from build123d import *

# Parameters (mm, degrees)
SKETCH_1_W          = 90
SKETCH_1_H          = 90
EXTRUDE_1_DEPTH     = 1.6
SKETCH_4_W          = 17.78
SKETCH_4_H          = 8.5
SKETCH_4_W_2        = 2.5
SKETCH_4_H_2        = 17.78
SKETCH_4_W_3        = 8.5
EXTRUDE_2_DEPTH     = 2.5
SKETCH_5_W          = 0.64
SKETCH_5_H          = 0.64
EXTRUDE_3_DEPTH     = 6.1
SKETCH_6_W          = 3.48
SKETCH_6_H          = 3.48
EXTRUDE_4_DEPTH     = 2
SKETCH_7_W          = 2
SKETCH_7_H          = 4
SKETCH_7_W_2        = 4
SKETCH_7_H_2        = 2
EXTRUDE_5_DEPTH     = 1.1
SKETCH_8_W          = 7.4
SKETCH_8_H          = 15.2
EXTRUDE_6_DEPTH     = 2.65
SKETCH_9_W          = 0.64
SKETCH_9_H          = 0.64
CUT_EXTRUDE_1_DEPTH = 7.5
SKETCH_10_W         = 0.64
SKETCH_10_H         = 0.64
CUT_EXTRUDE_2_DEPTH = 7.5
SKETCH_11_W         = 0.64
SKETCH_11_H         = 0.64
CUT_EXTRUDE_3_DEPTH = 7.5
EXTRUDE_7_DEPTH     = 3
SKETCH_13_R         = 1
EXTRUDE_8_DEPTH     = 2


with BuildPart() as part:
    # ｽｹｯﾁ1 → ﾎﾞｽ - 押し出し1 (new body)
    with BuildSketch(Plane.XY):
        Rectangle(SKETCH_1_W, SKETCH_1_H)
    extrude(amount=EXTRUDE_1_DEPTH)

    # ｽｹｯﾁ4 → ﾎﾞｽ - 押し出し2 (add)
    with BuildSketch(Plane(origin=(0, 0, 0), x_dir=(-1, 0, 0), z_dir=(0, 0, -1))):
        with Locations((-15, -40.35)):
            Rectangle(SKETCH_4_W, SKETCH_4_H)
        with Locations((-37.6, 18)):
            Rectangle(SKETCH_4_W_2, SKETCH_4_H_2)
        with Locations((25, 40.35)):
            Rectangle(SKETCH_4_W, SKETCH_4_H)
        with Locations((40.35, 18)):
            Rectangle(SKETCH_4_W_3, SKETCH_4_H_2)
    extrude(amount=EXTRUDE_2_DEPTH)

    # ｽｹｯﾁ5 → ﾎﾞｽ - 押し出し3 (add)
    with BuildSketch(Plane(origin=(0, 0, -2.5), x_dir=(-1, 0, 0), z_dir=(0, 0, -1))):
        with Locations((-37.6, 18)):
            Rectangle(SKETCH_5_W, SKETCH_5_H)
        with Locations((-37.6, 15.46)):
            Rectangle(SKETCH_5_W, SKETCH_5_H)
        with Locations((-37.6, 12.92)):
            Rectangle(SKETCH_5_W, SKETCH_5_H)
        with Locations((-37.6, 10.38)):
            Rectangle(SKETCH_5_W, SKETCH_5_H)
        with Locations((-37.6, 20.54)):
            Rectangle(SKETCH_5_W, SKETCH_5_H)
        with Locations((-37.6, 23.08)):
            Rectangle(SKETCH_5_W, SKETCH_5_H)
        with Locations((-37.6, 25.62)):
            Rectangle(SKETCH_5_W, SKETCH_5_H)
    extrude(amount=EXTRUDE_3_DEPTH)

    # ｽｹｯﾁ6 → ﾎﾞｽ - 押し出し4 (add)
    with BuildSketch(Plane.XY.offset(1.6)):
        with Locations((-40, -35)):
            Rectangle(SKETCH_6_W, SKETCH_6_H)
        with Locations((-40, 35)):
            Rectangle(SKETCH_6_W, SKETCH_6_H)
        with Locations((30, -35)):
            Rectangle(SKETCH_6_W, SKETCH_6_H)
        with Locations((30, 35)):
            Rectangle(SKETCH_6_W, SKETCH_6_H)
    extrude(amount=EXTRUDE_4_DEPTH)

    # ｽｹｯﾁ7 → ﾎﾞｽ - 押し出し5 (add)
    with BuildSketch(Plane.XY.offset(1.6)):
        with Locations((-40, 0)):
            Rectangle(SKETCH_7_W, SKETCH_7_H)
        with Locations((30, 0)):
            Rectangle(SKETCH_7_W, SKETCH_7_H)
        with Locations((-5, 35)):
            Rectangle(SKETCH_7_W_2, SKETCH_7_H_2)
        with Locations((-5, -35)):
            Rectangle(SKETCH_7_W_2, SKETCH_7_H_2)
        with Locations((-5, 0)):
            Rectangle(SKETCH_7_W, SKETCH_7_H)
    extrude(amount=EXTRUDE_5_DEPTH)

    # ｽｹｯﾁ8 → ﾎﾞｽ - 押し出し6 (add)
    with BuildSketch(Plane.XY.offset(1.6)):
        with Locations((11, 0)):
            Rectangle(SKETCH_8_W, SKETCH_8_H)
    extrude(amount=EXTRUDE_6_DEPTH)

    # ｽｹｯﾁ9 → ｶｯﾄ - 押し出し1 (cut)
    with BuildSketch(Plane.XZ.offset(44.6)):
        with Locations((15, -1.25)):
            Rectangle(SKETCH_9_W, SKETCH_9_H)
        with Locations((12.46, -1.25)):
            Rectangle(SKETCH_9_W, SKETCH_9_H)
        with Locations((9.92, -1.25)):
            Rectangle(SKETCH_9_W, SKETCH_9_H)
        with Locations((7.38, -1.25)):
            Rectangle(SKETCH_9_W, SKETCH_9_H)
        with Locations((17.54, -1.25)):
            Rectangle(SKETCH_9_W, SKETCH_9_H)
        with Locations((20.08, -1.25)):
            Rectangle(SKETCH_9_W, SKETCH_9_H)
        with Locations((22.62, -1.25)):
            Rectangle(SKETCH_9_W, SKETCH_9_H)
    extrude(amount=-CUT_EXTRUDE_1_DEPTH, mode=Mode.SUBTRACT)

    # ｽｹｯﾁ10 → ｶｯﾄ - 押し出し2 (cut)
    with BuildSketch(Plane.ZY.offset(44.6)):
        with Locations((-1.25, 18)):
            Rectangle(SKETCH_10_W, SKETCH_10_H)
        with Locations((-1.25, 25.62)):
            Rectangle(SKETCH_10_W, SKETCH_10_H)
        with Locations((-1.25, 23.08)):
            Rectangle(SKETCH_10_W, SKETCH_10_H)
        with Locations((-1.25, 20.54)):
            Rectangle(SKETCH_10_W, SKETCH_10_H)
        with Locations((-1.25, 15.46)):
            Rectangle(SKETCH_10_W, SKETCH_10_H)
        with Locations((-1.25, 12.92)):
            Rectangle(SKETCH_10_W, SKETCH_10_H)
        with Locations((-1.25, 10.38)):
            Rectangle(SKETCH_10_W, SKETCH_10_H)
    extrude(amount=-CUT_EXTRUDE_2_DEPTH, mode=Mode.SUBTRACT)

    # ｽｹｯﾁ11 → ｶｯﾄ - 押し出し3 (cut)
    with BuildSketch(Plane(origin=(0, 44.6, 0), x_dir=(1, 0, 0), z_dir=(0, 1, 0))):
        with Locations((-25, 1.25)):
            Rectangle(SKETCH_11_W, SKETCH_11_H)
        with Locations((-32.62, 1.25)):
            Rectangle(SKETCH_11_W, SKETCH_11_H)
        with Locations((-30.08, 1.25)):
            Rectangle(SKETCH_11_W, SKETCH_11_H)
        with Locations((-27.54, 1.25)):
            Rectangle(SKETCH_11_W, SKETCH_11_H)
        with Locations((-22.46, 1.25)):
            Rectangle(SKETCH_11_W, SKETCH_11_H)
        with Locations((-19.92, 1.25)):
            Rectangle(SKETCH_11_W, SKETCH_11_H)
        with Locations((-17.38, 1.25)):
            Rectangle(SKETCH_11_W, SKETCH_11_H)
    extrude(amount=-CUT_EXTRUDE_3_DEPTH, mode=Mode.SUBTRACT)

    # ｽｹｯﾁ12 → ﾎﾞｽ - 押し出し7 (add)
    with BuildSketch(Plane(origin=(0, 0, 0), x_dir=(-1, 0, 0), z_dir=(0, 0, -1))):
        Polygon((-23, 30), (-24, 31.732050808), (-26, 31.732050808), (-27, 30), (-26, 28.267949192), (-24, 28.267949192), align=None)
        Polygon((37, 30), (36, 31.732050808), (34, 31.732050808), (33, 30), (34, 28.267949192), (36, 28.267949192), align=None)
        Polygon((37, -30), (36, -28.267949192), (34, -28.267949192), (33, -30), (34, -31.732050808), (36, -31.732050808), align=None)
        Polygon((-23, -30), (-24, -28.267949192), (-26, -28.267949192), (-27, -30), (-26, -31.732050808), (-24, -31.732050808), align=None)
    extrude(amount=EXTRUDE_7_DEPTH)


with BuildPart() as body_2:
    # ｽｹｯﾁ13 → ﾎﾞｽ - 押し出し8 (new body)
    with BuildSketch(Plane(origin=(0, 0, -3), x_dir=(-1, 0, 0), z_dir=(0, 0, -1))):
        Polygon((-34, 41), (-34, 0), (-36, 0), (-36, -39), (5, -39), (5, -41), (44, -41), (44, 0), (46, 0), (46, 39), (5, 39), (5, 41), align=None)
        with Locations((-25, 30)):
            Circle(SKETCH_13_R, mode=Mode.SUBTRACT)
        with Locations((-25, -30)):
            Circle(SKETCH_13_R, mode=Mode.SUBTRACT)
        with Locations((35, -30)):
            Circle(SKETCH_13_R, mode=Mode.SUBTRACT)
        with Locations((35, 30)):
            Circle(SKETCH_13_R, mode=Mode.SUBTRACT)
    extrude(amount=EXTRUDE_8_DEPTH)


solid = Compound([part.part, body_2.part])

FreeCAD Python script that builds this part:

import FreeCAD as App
import Part
import Sketcher

V = App.Vector
Q = App.Units.Quantity


def add_polygon(sketch, points):
    """Adds a closed chain of lines whose ends are joined by coincident constraints."""
    first, n = sketch.GeometryCount, len(points)
    for a, b in zip(points, points[1:] + points[:1]):
        sketch.addGeometry(Part.LineSegment(App.Vector(*a, 0), App.Vector(*b, 0)), False)
    for i in range(n):
        sketch.addConstraint(Sketcher.Constraint("Coincident", first + i, 2, first + (i + 1) % n, 1))

doc = App.newDocument("Part")
params = doc.addObject("Spreadsheet::Sheet", "Params")
for row, (alias, value) in enumerate([
    ("sketch1_width", "90 mm"),
    ("pad1_length", "1.6 mm"),
    ("sketch2_width", "2.5 mm"),
    ("sketch2_width2", "8.5 mm"),
    ("sketch2_width3", "17.78 mm"),
    ("pad2_length", "2.5 mm"),
    ("sketch3_width", "0.64 mm"),
    ("pad3_length", "6.1 mm"),
    ("sketch4_width", "3.48 mm"),
    ("pad4_length", "2 mm"),
    ("sketch5_width", "2 mm"),
    ("sketch5_width2", "4 mm"),
    ("pad5_length", "1.1 mm"),
    ("sketch6_width", "7.4 mm"),
    ("sketch6_height", "15.2 mm"),
    ("pad6_length", "2.65 mm"),
    ("sketch7_width", "0.64 mm"),
    ("pocket1_length", "7.5 mm"),
    ("sketch8_width", "0.64 mm"),
    ("pocket2_length", "7.5 mm"),
    ("sketch9_width", "0.64 mm"),
    ("pocket3_length", "7.5 mm"),
    ("sketch10_width", "2 mm"),
    ("sketch10_length", "2 mm"),
    ("pad7_length", "3 mm"),
    ("sketch11_diameter", "2 mm"),
    ("sketch11_width", "2 mm"),
    ("sketch11_width2", "41 mm"),
    ("pad8_length", "2 mm"),
], start=1):
    params.set(f"A{row}", alias)
    params.set(f"B{row}", "=" + value)
    params.setAlias(f"B{row}", alias)

body = doc.addObject("PartDesign::Body", "Body")

sketch1 = doc.addObject("Sketcher::SketchObject", "Sketch")
body.addObject(sketch1)
sketch1.AttachmentSupport = (doc.XY_Plane, [""])
sketch1.MapMode = "FlatFace"
add_polygon(sketch1, [(-45, 45), (-45, -45), (45, -45), (45, 45)])
sketch1.addConstraint([
    Sketcher.Constraint("Vertical", 0),
    Sketcher.Constraint("Horizontal", 1),
    Sketcher.Constraint("Vertical", 2),
    Sketcher.Constraint("Horizontal", 3),
    Sketcher.Constraint("Symmetric", 0, 2, 2, 2, -1, 1),
    Sketcher.Constraint("Equal", 3, 0),
    Sketcher.Constraint("DistanceX", 1, 1, 1, 2, Q("90 mm")),
])
sketch1.setExpression("Constraints[10]", "Params.sketch1_width")
pad1 = doc.addObject("PartDesign::Pad", "Pad")
body.addObject(pad1)
pad1.Profile = sketch1
pad1.setExpression("Length", "Params.pad1_length")

sketch2 = doc.addObject("Sketcher::SketchObject", "Sketch001")
body.addObject(sketch2)
sketch2.AttachmentSupport = (doc.XY_Plane, [""])
sketch2.MapMode = "FlatFace"
add_polygon(sketch2, [(23.89, -36.1), (23.89, -44.6), (6.11, -44.6), (6.11, -36.1)])
add_polygon(sketch2, [(38.85, 26.89), (38.85, 9.11), (36.35, 9.11), (36.35, 26.89)])
add_polygon(sketch2, [(-16.11, 44.6), (-16.11, 36.1), (-33.89, 36.1), (-33.89, 44.6)])
add_polygon(sketch2, [(-36.1, 26.89), (-36.1, 9.11), (-44.6, 9.11), (-44.6, 26.89)])
sketch2.addConstraint([
    Sketcher.Constraint("Vertical", 0),
    Sketcher.Constraint("Horizontal", 1),
    Sketcher.Constraint("Vertical", 2),
    Sketcher.Constraint("Horizontal", 3),
    Sketcher.Constraint("Vertical", 4),
    Sketcher.Constraint("Horizontal", 5),
    Sketcher.Constraint("Vertical", 6),
    Sketcher.Constraint("Horizontal", 7),
    Sketcher.Constraint("Vertical", 8),
    Sketcher.Constraint("Horizontal", 9),
    Sketcher.Constraint("Vertical", 10),
    Sketcher.Constraint("Horizontal", 11),
    Sketcher.Constraint("Vertical", 12),
    Sketcher.Constraint("Horizontal", 13),
    Sketcher.Constraint("Vertical", 14),
    Sketcher.Constraint("Horizontal", 15),
    Sketcher.Constraint("Horizontal", 5, 2, 12, 2),
    Sketcher.Constraint("Horizontal", 7, 2, 14, 2),
    Sketcher.Constraint("Equal", 3, 9),
    Sketcher.Constraint("Equal", 15, 0),
    Sketcher.Constraint("Equal", 11, 4),
    Sketcher.Constraint("Equal", 2, 8),
    Sketcher.Constraint("DistanceX", 5, 2, 5, 1, Q("2.5 mm")),
    Sketcher.Constraint("DistanceX", 13, 2, 13, 1, Q("8.5 mm")),
    Sketcher.Constraint("DistanceX", 1, 2, 1, 1, Q("17.78 mm")),
    Sketcher.Constraint("DistanceY", 0, 2, -1, 1, Q("44.6 mm")),
    Sketcher.Constraint("DistanceY", -1, 1, 8, 2, Q("36.1 mm")),
    Sketcher.Constraint("DistanceX", 12, 2, -1, 1, Q("36.1 mm")),
    Sketcher.Constraint("DistanceX", -1, 1, 0, 2, Q("23.89 mm")),
    Sketcher.Constraint("DistanceX", -1, 1, 4, 2, Q("38.85 mm")),
    Sketcher.Constraint("DistanceY", -1, 1, 4, 2, Q("9.11 mm")),
    Sketcher.Constraint("DistanceX", 8, 2, -1, 1, Q("16.11 mm")),
])
sketch2.setExpression("Constraints[38]", "Params.sketch2_width")
sketch2.setExpression("Constraints[39]", "Params.sketch2_width2")
sketch2.setExpression("Constraints[40]", "Params.sketch2_width3")
pad2 = doc.addObject("PartDesign::Pad", "Pad001")
body.addObject(pad2)
pad2.Profile = sketch2
pad2.setExpression("Length", "Params.pad2_length")
pad2.Reversed = True

sketch3 = doc.addObject("Sketcher::SketchObject", "Sketch002")
body.addObject(sketch3)
sketch3.AttachmentSupport = (doc.XY_Plane, [""])
sketch3.MapMode = "FlatFace"
sketch3.AttachmentOffset = App.Placement(V(0, 0, -2.5), App.Rotation())
add_polygon(sketch3, [(37.92, 18.32), (37.92, 17.68), (37.28, 17.68), (37.28, 18.32)])
add_polygon(sketch3, [(37.92, 15.78), (37.92, 15.14), (37.28, 15.14), (37.28, 15.78)])
add_polygon(sketch3, [(37.92, 13.24), (37.92, 12.6), (37.28, 12.6), (37.28, 13.24)])
add_polygon(sketch3, [(37.92, 10.7), (37.92, 10.06), (37.28, 10.06), (37.28, 10.7)])
add_polygon(sketch3, [(37.92, 20.86), (37.92, 20.22), (37.28, 20.22), (37.28, 20.86)])
add_polygon(sketch3, [(37.92, 23.4), (37.92, 22.76), (37.28, 22.76), (37.28, 23.4)])
add_polygon(sketch3, [(37.92, 25.94), (37.92, 25.3), (37.28, 25.3), (37.28, 25.94)])
sketch3.addConstraint([
    Sketcher.Constraint("Vertical", 0),
    Sketcher.Constraint("Horizontal", 1),
    Sketcher.Constraint("Vertical", 2),
    Sketcher.Constraint("Horizontal", 3),
    Sketcher.Constraint("Vertical", 4),
    Sketcher.Constraint("Horizontal", 5),
    Sketcher.Constraint("Vertical", 6),
    Sketcher.Constraint("Horizontal", 7),
    Sketcher.Constraint("Vertical", 8),
    Sketcher.Constraint("Horizontal", 9),
    Sketcher.Constraint("Vertical", 10),
    Sketcher.Constraint("Horizontal", 11),
    Sketcher.Constraint("Vertical", 12),
    Sketcher.Constraint("Horizontal", 13),
    Sketcher.Constraint("Vertical", 14),
    Sketcher.Constraint("Horizontal", 15),
    Sketcher.Constraint("Vertical", 16),
    Sketcher.Constraint("Horizontal", 17),
    Sketcher.Constraint("Vertical", 18),
    Sketcher.Constraint("Horizontal", 19),
    Sketcher.Constraint("Vertical", 20),
    Sketcher.Constraint("Horizontal", 21),
    Sketcher.Constraint("Vertical", 22),
    Sketcher.Constraint("Horizontal", 23),
    Sketcher.Constraint("Vertical", 24),
    Sketcher.Constraint("Horizontal", 25),
    Sketcher.Constraint("Vertical", 26),
    Sketcher.Constraint("Horizontal", 27),
    Sketcher.Constraint("Vertical", 3, 2, 4, 2),
    Sketcher.Constraint("Vertical", 2, 2, 5, 2),
    Sketcher.Constraint("Vertical", 7, 2, 8, 2),
    Sketcher.Constraint("Vertical", 6, 2, 9, 2),
    Sketcher.Constraint("Vertical", 11, 2, 12, 2),
    Sketcher.Constraint("Vertical", 10, 2, 13, 2),
    Sketcher.Constraint("Vertical", 15, 2, 16, 2),
    Sketcher.Constraint("Vertical", 14, 2, 17, 2),
    Sketcher.Constraint("Vertical", 19, 2, 20, 2),
    Sketcher.Constraint("Vertical", 18, 2, 21, 2),
    Sketcher.Constraint("Vertical", 23, 2, 24, 2),
    Sketcher.Constraint("Vertical", 22, 2, 25, 2),
    Sketcher.Constraint("Equal", 27, 0),
    Sketcher.Constraint("Equal", 2, 4),
    Sketcher.Constraint("Equal", 6, 8),
    Sketcher.Constraint("Equal", 10, 12),
    Sketcher.Constraint("Equal", 14, 16),
    Sketcher.Constraint("Equal", 18, 20),
    Sketcher.Constraint("Equal", 22, 24),
    Sketcher.Constraint("DistanceX", 1, 2, 1, 1, Q("0.64 mm")),
    Sketcher.Constraint("DistanceY", -1, 1, 8, 2, Q("12.6 mm")),
    Sketcher.Constraint("DistanceY", -1, 1, 14, 2, Q("10.7 mm")),
    Sketcher.Constraint("DistanceY", -1, 1, 22, 2, Q("23.4 mm")),
    Sketcher.Constraint("DistanceY", -1, 1, 24, 2, Q("25.3 mm")),
    Sketcher.Constraint("DistanceY", 6, 2, 1, 2, Q("1.9 mm")),
    Sketcher.Constraint("DistanceY", 10, 2, 5, 2, Q("1.9 mm")),
    Sketcher.Constraint("DistanceY", 3, 2, 16, 2, Q("1.9 mm")),
    Sketcher.Constraint("DistanceX", -1, 1, 0, 2, Q("37.92 mm")),
])
sketch3.setExpression("Constraints[75]", "Params.sketch3_width")
pad3 = doc.addObject("PartDesign::Pad", "Pad002")
body.addObject(pad3)
pad3.Profile = sketch3
pad3.setExpression("Length", "Params.pad3_length")
pad3.Reversed = True

sketch4 = doc.addObject("Sketcher::SketchObject", "Sketch003")
body.addObject(sketch4)
sketch4.AttachmentSupport = (doc.XY_Plane, [""])
sketch4.MapMode = "FlatFace"
sketch4.AttachmentOffset = App.Placement(V(0, 0, 1.6), App.Rotation())
add_polygon(sketch4, [(-41.74, -33.26), (-41.74, -36.74), (-38.26, -36.74), (-38.26, -33.26)])
add_polygon(sketch4, [(-41.74, 36.74), (-41.74, 33.26), (-38.26, 33.26), (-38.26, 36.74)])
add_polygon(sketch4, [(28.26, -33.26), (28.26, -36.74), (31.74, -36.74), (31.74, -33.26)])
add_polygon(sketch4, [(28.26, 36.74), (28.26, 33.26), (31.74, 33.26), (31.74, 36.74)])
sketch4.addConstraint([
    Sketcher.Constraint("Vertical", 0),
    Sketcher.Constraint("Horizontal", 1),
    Sketcher.Constraint("Vertical", 2),
    Sketcher.Constraint("Horizontal", 3),
    Sketcher.Constraint("Vertical", 4),
    Sketcher.Constraint("Horizontal", 5),
    Sketcher.Constraint("Vertical", 6),
    Sketcher.Constraint("Horizontal", 7),
    Sketcher.Constraint("Vertical", 8),
    Sketcher.Constraint("Horizontal", 9),
    Sketcher.Constraint("Vertical", 10),
    Sketcher.Constraint("Horizontal", 11),
    Sketcher.Constraint("Vertical", 12),
    Sketcher.Constraint("Horizontal", 13),
    Sketcher.Constraint("Vertical", 14),
    Sketcher.Constraint("Horizontal", 15),
    Sketcher.Constraint("Symmetric", 3, 2, 4, 2, -1),
    Sketcher.Constraint("Symmetric", 1, 2, 6, 2, -1),
    Sketcher.Constraint("Symmetric", 11, 2, 12, 2, -1),
    Sketcher.Constraint("Symmetric", 9, 2, 14, 2, -1),
    Sketcher.Constraint("Horizontal", 1, 2, 8, 2),
    Sketcher.Constraint("Horizontal", 3, 2, 10, 2),
    Sketcher.Constraint("Equal", 7, 9),
    Sketcher.Constraint("Equal", 15, 0),
    Sketcher.Constraint("DistanceY", 0, 2, 4, 2, Q("70 mm")),
    Sketcher.Constraint("DistanceX", 0, 2, 8, 2, Q("70 mm")),
    Sketcher.Constraint("DistanceX", 1, 1, 1, 2, Q("3.48 mm")),
    Sketcher.Constraint("DistanceX", 0, 2, -1, 1, Q("41.74 mm")),
])
sketch4.setExpression("Constraints[42]", "Params.sketch4_width")
pad4 = doc.addObject("PartDesign::Pad", "Pad003")
body.addObject(pad4)
pad4.Profile = sketch4
pad4.setExpression("Length", "Params.pad4_length")

sketch5 = doc.addObject("Sketcher::SketchObject", "Sketch004")
body.addObject(sketch5)
sketch5.AttachmentSupport = (doc.XY_Plane, [""])
sketch5.MapMode = "FlatFace"
sketch5.AttachmentOffset = App.Placement(V(0, 0, 1.6), App.Rotation())
add_polygon(sketch5, [(-41, 2), (-41, -2), (-39, -2), (-39, 2)])
add_polygon(sketch5, [(29, 2), (29, -2), (31, -2), (31, 2)])
add_polygon(sketch5, [(-7, 36), (-7, 34), (-3, 34), (-3, 36)])
add_polygon(sketch5, [(-7, -34), (-7, -36), (-3, -36), (-3, -34)])
add_polygon(sketch5, [(-6, 2), (-6, -2), (-4, -2), (-4, 2)])
sketch5.addConstraint([
    Sketcher.Constraint("Vertical", 0),
    Sketcher.Constraint("Horizontal", 1),
    Sketcher.Constraint("Vertical", 2),
    Sketcher.Constraint("Horizontal", 3),
    Sketcher.Constraint("Vertical", 4),
    Sketcher.Constraint("Horizontal", 5),
    Sketcher.Constraint("Vertical", 6),
    Sketcher.Constraint("Horizontal", 7),
    Sketcher.Constraint("Vertical", 8),
    Sketcher.Constraint("Horizontal", 9),
    Sketcher.Constraint("Vertical", 10),
    Sketcher.Constraint("Horizontal", 11),
    Sketcher.Constraint("Vertical", 12),
    Sketcher.Constraint("Horizontal", 13),
    Sketcher.Constraint("Vertical", 14),
    Sketcher.Constraint("Horizontal", 15),
    Sketcher.Constraint("Vertical", 16),
    Sketcher.Constraint("Horizontal", 17),
    Sketcher.Constraint("Vertical", 18),
    Sketcher.Constraint("Horizontal", 19),
    Sketcher.Constraint("Symmetric", 11, 2, 12, 2, -1),
    Sketcher.Constraint("Symmetric", 9, 2, 14, 2, -1),
    Sketcher.Constraint("Horizontal", 1, 2, 4, 2),
    Sketcher.Constraint("Horizontal", 3, 2, 6, 2),
    Sketcher.Constraint("Horizontal", 5, 2, 16, 2),
    Sketcher.Constraint("Horizontal", 7, 2, 18, 2),
    Sketcher.Constraint("Equal", 3, 5),
    Sketcher.Constraint("Equal", 7, 17),
    Sketcher.Constraint("Equal", 15, 0),
    Sketcher.Constraint("Equal", 19, 8),
    Sketcher.Constraint("DistanceX", 1, 1, 1, 2, Q("2 mm")),
    Sketcher.Constraint("DistanceX", 9, 1, 9, 2, Q("4 mm")),
    Sketcher.Constraint("DistanceX", 0, 2, -1, 1, Q("41 mm")),
    Sketcher.Constraint("DistanceY", 0, 2, -1, 1, Q("2 mm")),
    Sketcher.Constraint("DistanceX", -1, 1, 4, 2, Q("29 mm")),
    Sketcher.Constraint("DistanceX", 8, 2, -1, 1, Q("7 mm")),
    Sketcher.Constraint("DistanceY", -1, 1, 8, 2, Q("34 mm")),
    Sketcher.Constraint("DistanceX", 16, 2, -1, 1, Q("6 mm")),
])
sketch5.setExpression("Constraints[50]", "Params.sketch5_width")
sketch5.setExpression("Constraints[51]", "Params.sketch5_width2")
pad5 = doc.addObject("PartDesign::Pad", "Pad004")
body.addObject(pad5)
pad5.Profile = sketch5
pad5.setExpression("Length", "Params.pad5_length")

sketch6 = doc.addObject("Sketcher::SketchObject", "Sketch005")
body.addObject(sketch6)
sketch6.AttachmentSupport = (doc.XY_Plane, [""])
sketch6.MapMode = "FlatFace"
sketch6.AttachmentOffset = App.Placement(V(0, 0, 1.6), App.Rotation())
add_polygon(sketch6, [(7.3, 7.6), (7.3, -7.6), (14.7, -7.6), (14.7, 7.6)])
sketch6.addConstraint([
    Sketcher.Constraint("Vertical", 0),
    Sketcher.Constraint("Horizontal", 1),
    Sketcher.Constraint("Vertical", 2),
    Sketcher.Constraint("Horizontal", 3),
    Sketcher.Constraint("DistanceX", 1, 1, 1, 2, Q("7.4 mm")),
    Sketcher.Constraint("DistanceY", 0, 2, 0, 1, Q("15.2 mm")),
    Sketcher.Constraint("DistanceX", -1, 1, 0, 2, Q("7.3 mm")),
    Sketcher.Constraint("DistanceY", 0, 2, -1, 1, Q("7.6 mm")),
])
sketch6.setExpression("Constraints[8]", "Params.sketch6_width")
sketch6.setExpression("Constraints[9]", "Params.sketch6_height")
pad6 = doc.addObject("PartDesign::Pad", "Pad005")
body.addObject(pad6)
pad6.Profile = sketch6
pad6.setExpression("Length", "Params.pad6_length")

sketch7 = doc.addObject("Sketcher::SketchObject", "Sketch006")
body.addObject(sketch7)
sketch7.AttachmentSupport = (doc.XZ_Plane, [""])
sketch7.MapMode = "FlatFace"
sketch7.AttachmentOffset = App.Placement(V(0, 0, 44.6), App.Rotation())
add_polygon(sketch7, [(14.68, -0.93), (14.68, -1.57), (15.32, -1.57), (15.32, -0.93)])
add_polygon(sketch7, [(12.14, -0.93), (12.14, -1.57), (12.78, -1.57), (12.78, -0.93)])
add_polygon(sketch7, [(9.6, -0.93), (9.6, -1.57), (10.24, -1.57), (10.24, -0.93)])
add_polygon(sketch7, [(7.06, -0.93), (7.06, -1.57), (7.7, -1.57), (7.7, -0.93)])
add_polygon(sketch7, [(17.22, -0.93), (17.22, -1.57), (17.86, -1.57), (17.86, -0.93)])
add_polygon(sketch7, [(19.76, -0.93), (19.76, -1.57), (20.4, -1.57), (20.4, -0.93)])
add_polygon(sketch7, [(22.3, -0.93), (22.3, -1.57), (22.94, -1.57), (22.94, -0.93)])
sketch7.addConstraint([
    Sketcher.Constraint("Vertical", 0),
    Sketcher.Constraint("Horizontal", 1),
    Sketcher.Constraint("Vertical", 2),
    Sketcher.Constraint("Horizontal", 3),
    Sketcher.Constraint("Vertical", 4),
    Sketcher.Constraint("Horizontal", 5),
    Sketcher.Constraint("Vertical", 6),
    Sketcher.Constraint("Horizontal", 7),
    Sketcher.Constraint("Vertical", 8),
    Sketcher.Constraint("Horizontal", 9),
    Sketcher.Constraint("Vertical", 10),
    Sketcher.Constraint("Horizontal", 11),
    Sketcher.Constraint("Vertical", 12),
    Sketcher.Constraint("Horizontal", 13),
    Sketcher.Constraint("Vertical", 14),
    Sketcher.Constraint("Horizontal", 15),
    Sketcher.Constraint("Vertical", 16),
    Sketcher.Constraint("Horizontal", 17),
    Sketcher.Constraint("Vertical", 18),
    Sketcher.Constraint("Horizontal", 19),
    Sketcher.Constraint("Vertical", 20),
    Sketcher.Constraint("Horizontal", 21),
    Sketcher.Constraint("Vertical", 22),
    Sketcher.Constraint("Horizontal", 23),
    Sketcher.Constraint("Vertical", 24),
    Sketcher.Constraint("Horizontal", 25),
    Sketcher.Constraint("Vertical", 26),
    Sketcher.Constraint("Horizontal", 27),
    Sketcher.Constraint("Horizontal", 1, 2, 4, 2),
    Sketcher.Constraint("Horizontal", 3, 2, 6, 2),
    Sketcher.Constraint("Horizontal", 5, 2, 8, 2),
    Sketcher.Constraint("Horizontal", 7, 2, 10, 2),
    Sketcher.Constraint("Horizontal", 9, 2, 12, 2),
    Sketcher.Constraint("Horizontal", 11, 2, 14, 2),
    Sketcher.Constraint("Horizontal", 13, 2, 16, 2),
    Sketcher.Constraint("Horizontal", 15, 2, 18, 2),
    Sketcher.Constraint("Horizontal", 17, 2, 20, 2),
    Sketcher.Constraint("Horizontal", 19, 2, 22, 2),
    Sketcher.Constraint("Horizontal", 21, 2, 24, 2),
    Sketcher.Constraint("Horizontal", 23, 2, 26, 2),
    Sketcher.Constraint("Equal", 3, 5),
    Sketcher.Constraint("Equal", 7, 9),
    Sketcher.Constraint("Equal", 11, 13),
    Sketcher.Constraint("Equal", 15, 17),
    Sketcher.Constraint("Equal", 19, 21),
    Sketcher.Constraint("Equal", 23, 25),
    Sketcher.Constraint("Equal", 27, 0),
    Sketcher.Constraint("DistanceX", 1, 1, 1, 2, Q("0.64 mm")),
    Sketcher.Constraint("DistanceX", -1, 1, 8, 2, Q("9.6 mm")),
    Sketcher.Constraint("DistanceX", -1, 1, 13, 2, Q("7.7 mm")),
    Sketcher.Constraint("DistanceX", -1, 1, 21, 2, Q("20.4 mm")),
    Sketcher.Constraint("DistanceX", -1, 1, 24, 2, Q("22.3 mm")),
    Sketcher.Constraint("DistanceX", 5, 2, 0, 2, Q("1.9 mm")),
    Sketcher.Constraint("DistanceX", 9, 2, 4, 2, Q("1.9 mm")),
    Sketcher.Constraint("DistanceX", 1, 2, 16, 2, Q("1.9 mm")),
    Sketcher.Constraint("DistanceY", 0, 2, -1, 1, Q("1.57 mm")),
])
sketch7.setExpression("Constraints[75]", "Params.sketch7_width")
pocket1 = doc.addObject("PartDesign::Pocket", "Pocket")
body.addObject(pocket1)
pocket1.Profile = sketch7
pocket1.setExpression("Length", "Params.pocket1_length")

sketch8 = doc.addObject("Sketcher::SketchObject", "Sketch007")
body.addObject(sketch8)
sketch8.AttachmentSupport = (doc.YZ_Plane, [""])
sketch8.MapMode = "FlatFace"
sketch8.AttachmentOffset = App.Placement(V(0, 0, -44.6), App.Rotation())
add_polygon(sketch8, [(18.32, -1.57), (17.68, -1.57), (17.68, -0.93), (18.32, -0.93)])
add_polygon(sketch8, [(25.94, -1.57), (25.3, -1.57), (25.3, -0.93), (25.94, -0.93)])
add_polygon(sketch8, [(23.4, -1.57), (22.76, -1.57), (22.76, -0.93), (23.4, -0.93)])
add_polygon(sketch8, [(20.86, -1.57), (20.22, -1.57), (20.22, -0.93), (20.86, -0.93)])
add_polygon(sketch8, [(15.78, -1.57), (15.14, -1.57), (15.14, -0.93), (15.78, -0.93)])
add_polygon(sketch8, [(13.24, -1.57), (12.6, -1.57), (12.6, -0.93), (13.24, -0.93)])
add_polygon(sketch8, [(10.7, -1.57), (10.06, -1.57), (10.06, -0.93), (10.7, -0.93)])
sketch8.addConstraint([
    Sketcher.Constraint("Horizontal", 0),
    Sketcher.Constraint("Vertical", 1),
    Sketcher.Constraint("Horizontal", 2),
    Sketcher.Constraint("Vertical", 3),
    Sketcher.Constraint("Horizontal", 4),
    Sketcher.Constraint("Vertical", 5),
    Sketcher.Constraint("Horizontal", 6),
    Sketcher.Constraint("Vertical", 7),
    Sketcher.Constraint("Horizontal", 8),
    Sketcher.Constraint("Vertical", 9),
    Sketcher.Constraint("Horizontal", 10),
    Sketcher.Constraint("Vertical", 11),
    Sketcher.Constraint("Horizontal", 12),
    Sketcher.Constraint("Vertical", 13),
    Sketcher.Constraint("Horizontal", 14),
    Sketcher.Constraint("Vertical", 15),
    Sketcher.Constraint("Horizontal", 16),
    Sketcher.Constraint("Vertical", 17),
    Sketcher.Constraint("Horizontal", 18),
    Sketcher.Constraint("Vertical", 19),
    Sketcher.Constraint("Horizontal", 20),
    Sketcher.Constraint("Vertical", 21),
    Sketcher.Constraint("Horizontal", 22),
    Sketcher.Constraint("Vertical", 23),
    Sketcher.Constraint("Horizontal", 24),
    Sketcher.Constraint("Vertical", 25),
    Sketcher.Constraint("Horizontal", 26),
    Sketcher.Constraint("Vertical", 27),
    Sketcher.Constraint("Horizontal", 3, 2, 4, 2),
    Sketcher.Constraint("Horizontal", 2, 2, 5, 2),
    Sketcher.Constraint("Horizontal", 7, 2, 8, 2),
    Sketcher.Constraint("Horizontal", 6, 2, 9, 2),
    Sketcher.Constraint("Horizontal", 11, 2, 12, 2),
    Sketcher.Constraint("Horizontal", 10, 2, 13, 2),
    Sketcher.Constraint("Horizontal", 15, 2, 16, 2),
    Sketcher.Constraint("Horizontal", 14, 2, 17, 2),
    Sketcher.Constraint("Horizontal", 19, 2, 20, 2),
    Sketcher.Constraint("Horizontal", 18, 2, 21, 2),
    Sketcher.Constraint("Horizontal", 23, 2, 24, 2),
    Sketcher.Constraint("Horizontal", 22, 2, 25, 2),
    Sketcher.Constraint("Equal", 2, 4),
    Sketcher.Constraint("Equal", 6, 8),
    Sketcher.Constraint("Equal", 10, 12),
    Sketcher.Constraint("Equal", 14, 16),
    Sketcher.Constraint("Equal", 18, 20),
    Sketcher.Constraint("Equal", 22, 24),
    Sketcher.Constraint("Equal", 26, 1),
    Sketcher.Constraint("DistanceX", 0, 2, 0, 1, Q("0.64 mm")),
    Sketcher.Constraint("DistanceX", -1, 1, 4, 2, Q("25.3 mm")),
    Sketcher.Constraint("DistanceX", -1, 1, 10, 2, Q("23.4 mm")),
    Sketcher.Constraint("DistanceX", -1, 1, 20, 2, Q("12.6 mm")),
    Sketcher.Constraint("DistanceX", -1, 1, 26, 2, Q("10.7 mm")),
    Sketcher.Constraint("DistanceX", 3, 2, 12, 2, Q("1.9 mm")),
    Sketcher.Constraint("DistanceX", 14, 2, 9, 2, Q("1.9 mm")),
    Sketcher.Constraint("DistanceX", 18, 2, 1, 2, Q("1.9 mm")),
    Sketcher.Constraint("DistanceY", 0, 2, -1, 1, Q("1.57 mm")),
])
sketch8.setExpression("Constraints[75]", "Params.sketch8_width")
pocket2 = doc.addObject("PartDesign::Pocket", "Pocket001")
body.addObject(pocket2)
pocket2.Profile = sketch8
pocket2.setExpression("Length", "Params.pocket2_length")
pocket2.Reversed = True

sketch9 = doc.addObject("Sketcher::SketchObject", "Sketch008")
body.addObject(sketch9)
sketch9.AttachmentSupport = (doc.XZ_Plane, [""])
sketch9.MapMode = "FlatFace"
sketch9.AttachmentOffset = App.Placement(V(0, 0, -44.6), App.Rotation())
add_polygon(sketch9, [(-25.32, -1.57), (-25.32, -0.93), (-24.68, -0.93), (-24.68, -1.57)])
add_polygon(sketch9, [(-32.94, -1.57), (-32.94, -0.93), (-32.3, -0.93), (-32.3, -1.57)])
add_polygon(sketch9, [(-30.4, -1.57), (-30.4, -0.93), (-29.76, -0.93), (-29.76, -1.57)])
add_polygon(sketch9, [(-27.86, -1.57), (-27.86, -0.93), (-27.22, -0.93), (-27.22, -1.57)])
add_polygon(sketch9, [(-22.78, -1.57), (-22.78, -0.93), (-22.14, -0.93), (-22.14, -1.57)])
add_polygon(sketch9, [(-20.24, -1.57), (-20.24, -0.93), (-19.6, -0.93), (-19.6, -1.57)])
add_polygon(sketch9, [(-17.7, -1.57), (-17.7, -0.93), (-17.06, -0.93), (-17.06, -1.57)])
sketch9.addConstraint([
    Sketcher.Constraint("Vertical", 0),
    Sketcher.Constraint("Horizontal", 1),
    Sketcher.Constraint("Vertical", 2),
    Sketcher.Constraint("Horizontal", 3),
    Sketcher.Constraint("Vertical", 4),
    Sketcher.Constraint("Horizontal", 5),
    Sketcher.Constraint("Vertical", 6),
    Sketcher.Constraint("Horizontal", 7),
    Sketcher.Constraint("Vertical", 8),
    Sketcher.Constraint("Horizontal", 9),
    Sketcher.Constraint("Vertical", 10),
    Sketcher.Constraint("Horizontal", 11),
    Sketcher.Constraint("Vertical", 12),
    Sketcher.Constraint("Horizontal", 13),
    Sketcher.Constraint("Vertical", 14),
    Sketcher.Constraint("Horizontal", 15),
    Sketcher.Constraint("Vertical", 16),
    Sketcher.Constraint("Horizontal", 17),
    Sketcher.Constraint("Vertical", 18),
    Sketcher.Constraint("Horizontal", 19),
    Sketcher.Constraint("Vertical", 20),
    Sketcher.Constraint("Horizontal", 21),
    Sketcher.Constraint("Vertical", 22),
    Sketcher.Constraint("Horizontal", 23),
    Sketcher.Constraint("Vertical", 24),
    Sketcher.Constraint("Horizontal", 25),
    Sketcher.Constraint("Vertical", 26),
    Sketcher.Constraint("Horizontal", 27),
    Sketcher.Constraint("Horizontal", 1, 2, 4, 2),
    Sketcher.Constraint("Horizontal", 3, 2, 6, 2),
    Sketcher.Constraint("Horizontal", 5, 2, 8, 2),
    Sketcher.Constraint("Horizontal", 7, 2, 10, 2),
    Sketcher.Constraint("Horizontal", 9, 2, 12, 2),
    Sketcher.Constraint("Horizontal", 11, 2, 14, 2),
    Sketcher.Constraint("Horizontal", 13, 2, 16, 2),
    Sketcher.Constraint("Horizontal", 15, 2, 18, 2),
    Sketcher.Constraint("Horizontal", 17, 2, 20, 2),
    Sketcher.Constraint("Horizontal", 19, 2, 22, 2),
    Sketcher.Constraint("Horizontal", 21, 2, 24, 2),
    Sketcher.Constraint("Horizontal", 23, 2, 26, 2),
    Sketcher.Constraint("Equal", 3, 5),
    Sketcher.Constraint("Equal", 7, 9),
    Sketcher.Constraint("Equal", 11, 13),
    Sketcher.Constraint("Equal", 15, 17),
    Sketcher.Constraint("Equal", 19, 21),
    Sketcher.Constraint("Equal", 23, 25),
    Sketcher.Constraint("Equal", 27, 0),
    Sketcher.Constraint("DistanceX", 1, 1, 1, 2, Q("0.64 mm")),
    Sketcher.Constraint("DistanceX", 5, 2, -1, 1, Q("32.3 mm")),
    Sketcher.Constraint("DistanceX", 8, 2, -1, 1, Q("30.4 mm")),
    Sketcher.Constraint("DistanceX", 21, 2, -1, 1, Q("19.6 mm")),
    Sketcher.Constraint("DistanceX", 24, 2, -1, 1, Q("17.7 mm")),
    Sketcher.Constraint("DistanceX", 9, 2, 12, 2, Q("1.9 mm")),
    Sketcher.Constraint("DistanceX", 13, 2, 0, 2, Q("1.9 mm")),
    Sketcher.Constraint("DistanceX", 1, 2, 16, 2, Q("1.9 mm")),
    Sketcher.Constraint("DistanceY", 0, 2, -1, 1, Q("0.93 mm")),
])
sketch9.setExpression("Constraints[75]", "Params.sketch9_width")
pocket3 = doc.addObject("PartDesign::Pocket", "Pocket002")
body.addObject(pocket3)
pocket3.Profile = sketch9
pocket3.setExpression("Length", "Params.pocket3_length")
pocket3.Reversed = True

sketch10 = doc.addObject("Sketcher::SketchObject", "Sketch009")
body.addObject(sketch10)
sketch10.AttachmentSupport = (doc.XY_Plane, [""])
sketch10.MapMode = "FlatFace"
add_polygon(sketch10, [(23, 30), (24, 31.732051), (26, 31.732051), (27, 30), (26, 28.267949), (24, 28.267949)])
add_polygon(sketch10, [(-37, 30), (-36, 31.732051), (-34, 31.732051), (-33, 30), (-34, 28.267949), (-36, 28.267949)])
add_polygon(sketch10, [(-37, -30), (-36, -28.267949), (-34, -28.267949), (-33, -30), (-34, -31.732051), (-36, -31.732051)])
add_polygon(sketch10, [(23, -30), (24, -28.267949), (26, -28.267949), (27, -30), (26, -31.732051), (24, -31.732051)])
sketch10.addConstraint([
    Sketcher.Constraint("Horizontal", 1),
    Sketcher.Constraint("Horizontal", 4),
    Sketcher.Constraint("Horizontal", 7),
    Sketcher.Constraint("Horizontal", 10),
    Sketcher.Constraint("Horizontal", 13),
    Sketcher.Constraint("Horizontal", 16),
    Sketcher.Constraint("Horizontal", 19),
    Sketcher.Constraint("Horizontal", 22),
    Sketcher.Constraint("Symmetric", 10, 2, 12, 2, -1),
    Sketcher.Constraint("Symmetric", 8, 2, 14, 2, -1),
    Sketcher.Constraint("Symmetric", 7, 2, 15, 2, -1),
    Sketcher.Constraint("Symmetric", 11, 2, 17, 2, -1),
    Sketcher.Constraint("Symmetric", 4, 2, 18, 2, -1),
    Sketcher.Constraint("Symmetric", 2, 2, 20, 2, -1),
    Sketcher.Constraint("Symmetric", 1, 2, 21, 2, -1),
    Sketcher.Constraint("Symmetric", 5, 2, 23, 2, -1),
    Sketcher.Constraint("Parallel", 0, 3),
    Sketcher.Constraint("Parallel", 2, 5),
    Sketcher.Constraint("Parallel", 3, 6),
    Sketcher.Constraint("Parallel", 5, 8),
    Sketcher.Constraint("Parallel", 6, 9),
    Sketcher.Constraint("Parallel", 8, 11),
    Sketcher.Constraint("Parallel", 9, 12),
    Sketcher.Constraint("Parallel", 11, 14),
    Sketcher.Constraint("Parallel", 14, 17),
    Sketcher.Constraint("Parallel", 17, 20),
    Sketcher.Constraint("Parallel", 20, 23),
    Sketcher.Constraint("Horizontal", 2, 2, 5, 2),
    Sketcher.Constraint("Horizontal", 1, 2, 6, 2),
    Sketcher.Constraint("Horizontal", 5, 2, 8, 2),
    Sketcher.Constraint("Horizontal", 4, 2, 9, 2),
    Sketcher.Constraint("Horizontal", 8, 2, 11, 2),
    Sketcher.Constraint("Vertical", 1, 2, 3, 2),
    Sketcher.Constraint("Equal", 4, 7),
    Sketcher.Constraint("DistanceX", 1, 1, 1, 2, Q("2 mm")),
    Sketcher.Constraint("Angle", 0, Q("60 deg")),
    Sketcher.Constraint("Distance", 0, Q("2 mm")),
    Sketcher.Constraint("DistanceX", -1, 1, 0, 2, Q("24 mm")),
    Sketcher.Constraint("DistanceY", -1, 1, 2, 2, Q("30 mm")),
    Sketcher.Constraint("DistanceX", 6, 2, -1, 1, Q("36 mm")),
])
sketch10.setExpression("Constraints[58]", "Params.sketch10_width")
sketch10.setExpression("Constraints[60]", "Params.sketch10_length")
pad7 = doc.addObject("PartDesign::Pad", "Pad006")
body.addObject(pad7)
pad7.Profile = sketch10
pad7.setExpression("Length", "Params.pad7_length")
pad7.Reversed = True
body2 = doc.addObject("PartDesign::Body", "Body001")

sketch11 = doc.addObject("Sketcher::SketchObject", "Sketch010")
body2.addObject(sketch11)
sketch11.AttachmentSupport = (doc.getObject("XY_Plane001"), [""])
sketch11.MapMode = "FlatFace"
sketch11.AttachmentOffset = App.Placement(V(0, 0, -3), App.Rotation())
add_polygon(sketch11, [(34, 41), (34, 0), (36, 0), (36, -39), (-5, -39), (-5, -41), (-44, -41), (-44, 0), (-46, 0), (-46, 39), (-5, 39), (-5, 41)])
sketch11.addGeometry(Part.Circle(V(25, -30, 0), V(0, 0, 1), 1), False)
sketch11.addGeometry(Part.Circle(V(-35, -30, 0), V(0, 0, 1), 1), False)
sketch11.addGeometry(Part.Circle(V(25, 30, 0), V(0, 0, 1), 1), False)
sketch11.addGeometry(Part.Circle(V(-35, 30, 0), V(0, 0, 1), 1), False)
sketch11.addConstraint([
    Sketcher.Constraint("Vertical", 0),
    Sketcher.Constraint("Horizontal", 1),
    Sketcher.Constraint("Vertical", 2),
    Sketcher.Constraint("Horizontal", 3),
    Sketcher.Constraint("Vertical", 4),
    Sketcher.Constraint("Horizontal", 5),
    Sketcher.Constraint("Vertical", 6),
    Sketcher.Constraint("Horizontal", 7),
    Sketcher.Constraint("Vertical", 8),
    Sketcher.Constraint("Horizontal", 9),
    Sketcher.Constraint("Vertical", 10),
    Sketcher.Constraint("Horizontal", 11),
    Sketcher.Constraint("Equal", 12, 13),
    Sketcher.Constraint("Equal", 13, 14),
    Sketcher.Constraint("Equal", 14, 15),
    Sketcher.Constraint("Symmetric", 12, 3, 14, 3, -1),
    Sketcher.Constraint("Symmetric", 13, 3, 15, 3, -1),
    Sketcher.Constraint("Symmetric", 3, 2, 9, 2, -1),
    Sketcher.Constraint("PointOnObject", 0, 2, -1),
    Sketcher.Constraint("PointOnObject", 6, 2, -1),
    Sketcher.Constraint("Horizontal", 12, 3, 13, 3),
    Sketcher.Constraint("Equal", 1, 7),
    Sketcher.Constraint("Equal", 3, 9),
    Sketcher.Constraint("Equal", 9, 0),
    Sketcher.Constraint("Equal", 11, 2),
    Sketcher.Constraint("Equal", 7, 4),
    Sketcher.Constraint("Diameter", 12, Q("2 mm")),
    Sketcher.Constraint("DistanceX", 1, 1, 1, 2, Q("2 mm")),
    Sketcher.Constraint("DistanceX", 3, 2, 3, 1, Q("41 mm")),
    Sketcher.Constraint("DistanceX", -1, 1, 12, 3, Q("25 mm")),
    Sketcher.Constraint("DistanceY", 12, 3, -1, 1, Q("30 mm")),
    Sketcher.Constraint("DistanceX", 13, 3, -1, 1, Q("35 mm")),
    Sketcher.Constraint("DistanceX", -1, 1, 0, 2, Q("34 mm")),
])
sketch11.setExpression("Constraints[38]", "Params.sketch11_diameter")
sketch11.setExpression("Constraints[39]", "Params.sketch11_width")
sketch11.setExpression("Constraints[40]", "Params.sketch11_width2")
pad8 = doc.addObject("PartDesign::Pad", "Pad007")
body2.addObject(pad8)
pad8.Profile = sketch11
pad8.setExpression("Length", "Params.pad8_length")
pad8.Reversed = True

doc.recompute()
